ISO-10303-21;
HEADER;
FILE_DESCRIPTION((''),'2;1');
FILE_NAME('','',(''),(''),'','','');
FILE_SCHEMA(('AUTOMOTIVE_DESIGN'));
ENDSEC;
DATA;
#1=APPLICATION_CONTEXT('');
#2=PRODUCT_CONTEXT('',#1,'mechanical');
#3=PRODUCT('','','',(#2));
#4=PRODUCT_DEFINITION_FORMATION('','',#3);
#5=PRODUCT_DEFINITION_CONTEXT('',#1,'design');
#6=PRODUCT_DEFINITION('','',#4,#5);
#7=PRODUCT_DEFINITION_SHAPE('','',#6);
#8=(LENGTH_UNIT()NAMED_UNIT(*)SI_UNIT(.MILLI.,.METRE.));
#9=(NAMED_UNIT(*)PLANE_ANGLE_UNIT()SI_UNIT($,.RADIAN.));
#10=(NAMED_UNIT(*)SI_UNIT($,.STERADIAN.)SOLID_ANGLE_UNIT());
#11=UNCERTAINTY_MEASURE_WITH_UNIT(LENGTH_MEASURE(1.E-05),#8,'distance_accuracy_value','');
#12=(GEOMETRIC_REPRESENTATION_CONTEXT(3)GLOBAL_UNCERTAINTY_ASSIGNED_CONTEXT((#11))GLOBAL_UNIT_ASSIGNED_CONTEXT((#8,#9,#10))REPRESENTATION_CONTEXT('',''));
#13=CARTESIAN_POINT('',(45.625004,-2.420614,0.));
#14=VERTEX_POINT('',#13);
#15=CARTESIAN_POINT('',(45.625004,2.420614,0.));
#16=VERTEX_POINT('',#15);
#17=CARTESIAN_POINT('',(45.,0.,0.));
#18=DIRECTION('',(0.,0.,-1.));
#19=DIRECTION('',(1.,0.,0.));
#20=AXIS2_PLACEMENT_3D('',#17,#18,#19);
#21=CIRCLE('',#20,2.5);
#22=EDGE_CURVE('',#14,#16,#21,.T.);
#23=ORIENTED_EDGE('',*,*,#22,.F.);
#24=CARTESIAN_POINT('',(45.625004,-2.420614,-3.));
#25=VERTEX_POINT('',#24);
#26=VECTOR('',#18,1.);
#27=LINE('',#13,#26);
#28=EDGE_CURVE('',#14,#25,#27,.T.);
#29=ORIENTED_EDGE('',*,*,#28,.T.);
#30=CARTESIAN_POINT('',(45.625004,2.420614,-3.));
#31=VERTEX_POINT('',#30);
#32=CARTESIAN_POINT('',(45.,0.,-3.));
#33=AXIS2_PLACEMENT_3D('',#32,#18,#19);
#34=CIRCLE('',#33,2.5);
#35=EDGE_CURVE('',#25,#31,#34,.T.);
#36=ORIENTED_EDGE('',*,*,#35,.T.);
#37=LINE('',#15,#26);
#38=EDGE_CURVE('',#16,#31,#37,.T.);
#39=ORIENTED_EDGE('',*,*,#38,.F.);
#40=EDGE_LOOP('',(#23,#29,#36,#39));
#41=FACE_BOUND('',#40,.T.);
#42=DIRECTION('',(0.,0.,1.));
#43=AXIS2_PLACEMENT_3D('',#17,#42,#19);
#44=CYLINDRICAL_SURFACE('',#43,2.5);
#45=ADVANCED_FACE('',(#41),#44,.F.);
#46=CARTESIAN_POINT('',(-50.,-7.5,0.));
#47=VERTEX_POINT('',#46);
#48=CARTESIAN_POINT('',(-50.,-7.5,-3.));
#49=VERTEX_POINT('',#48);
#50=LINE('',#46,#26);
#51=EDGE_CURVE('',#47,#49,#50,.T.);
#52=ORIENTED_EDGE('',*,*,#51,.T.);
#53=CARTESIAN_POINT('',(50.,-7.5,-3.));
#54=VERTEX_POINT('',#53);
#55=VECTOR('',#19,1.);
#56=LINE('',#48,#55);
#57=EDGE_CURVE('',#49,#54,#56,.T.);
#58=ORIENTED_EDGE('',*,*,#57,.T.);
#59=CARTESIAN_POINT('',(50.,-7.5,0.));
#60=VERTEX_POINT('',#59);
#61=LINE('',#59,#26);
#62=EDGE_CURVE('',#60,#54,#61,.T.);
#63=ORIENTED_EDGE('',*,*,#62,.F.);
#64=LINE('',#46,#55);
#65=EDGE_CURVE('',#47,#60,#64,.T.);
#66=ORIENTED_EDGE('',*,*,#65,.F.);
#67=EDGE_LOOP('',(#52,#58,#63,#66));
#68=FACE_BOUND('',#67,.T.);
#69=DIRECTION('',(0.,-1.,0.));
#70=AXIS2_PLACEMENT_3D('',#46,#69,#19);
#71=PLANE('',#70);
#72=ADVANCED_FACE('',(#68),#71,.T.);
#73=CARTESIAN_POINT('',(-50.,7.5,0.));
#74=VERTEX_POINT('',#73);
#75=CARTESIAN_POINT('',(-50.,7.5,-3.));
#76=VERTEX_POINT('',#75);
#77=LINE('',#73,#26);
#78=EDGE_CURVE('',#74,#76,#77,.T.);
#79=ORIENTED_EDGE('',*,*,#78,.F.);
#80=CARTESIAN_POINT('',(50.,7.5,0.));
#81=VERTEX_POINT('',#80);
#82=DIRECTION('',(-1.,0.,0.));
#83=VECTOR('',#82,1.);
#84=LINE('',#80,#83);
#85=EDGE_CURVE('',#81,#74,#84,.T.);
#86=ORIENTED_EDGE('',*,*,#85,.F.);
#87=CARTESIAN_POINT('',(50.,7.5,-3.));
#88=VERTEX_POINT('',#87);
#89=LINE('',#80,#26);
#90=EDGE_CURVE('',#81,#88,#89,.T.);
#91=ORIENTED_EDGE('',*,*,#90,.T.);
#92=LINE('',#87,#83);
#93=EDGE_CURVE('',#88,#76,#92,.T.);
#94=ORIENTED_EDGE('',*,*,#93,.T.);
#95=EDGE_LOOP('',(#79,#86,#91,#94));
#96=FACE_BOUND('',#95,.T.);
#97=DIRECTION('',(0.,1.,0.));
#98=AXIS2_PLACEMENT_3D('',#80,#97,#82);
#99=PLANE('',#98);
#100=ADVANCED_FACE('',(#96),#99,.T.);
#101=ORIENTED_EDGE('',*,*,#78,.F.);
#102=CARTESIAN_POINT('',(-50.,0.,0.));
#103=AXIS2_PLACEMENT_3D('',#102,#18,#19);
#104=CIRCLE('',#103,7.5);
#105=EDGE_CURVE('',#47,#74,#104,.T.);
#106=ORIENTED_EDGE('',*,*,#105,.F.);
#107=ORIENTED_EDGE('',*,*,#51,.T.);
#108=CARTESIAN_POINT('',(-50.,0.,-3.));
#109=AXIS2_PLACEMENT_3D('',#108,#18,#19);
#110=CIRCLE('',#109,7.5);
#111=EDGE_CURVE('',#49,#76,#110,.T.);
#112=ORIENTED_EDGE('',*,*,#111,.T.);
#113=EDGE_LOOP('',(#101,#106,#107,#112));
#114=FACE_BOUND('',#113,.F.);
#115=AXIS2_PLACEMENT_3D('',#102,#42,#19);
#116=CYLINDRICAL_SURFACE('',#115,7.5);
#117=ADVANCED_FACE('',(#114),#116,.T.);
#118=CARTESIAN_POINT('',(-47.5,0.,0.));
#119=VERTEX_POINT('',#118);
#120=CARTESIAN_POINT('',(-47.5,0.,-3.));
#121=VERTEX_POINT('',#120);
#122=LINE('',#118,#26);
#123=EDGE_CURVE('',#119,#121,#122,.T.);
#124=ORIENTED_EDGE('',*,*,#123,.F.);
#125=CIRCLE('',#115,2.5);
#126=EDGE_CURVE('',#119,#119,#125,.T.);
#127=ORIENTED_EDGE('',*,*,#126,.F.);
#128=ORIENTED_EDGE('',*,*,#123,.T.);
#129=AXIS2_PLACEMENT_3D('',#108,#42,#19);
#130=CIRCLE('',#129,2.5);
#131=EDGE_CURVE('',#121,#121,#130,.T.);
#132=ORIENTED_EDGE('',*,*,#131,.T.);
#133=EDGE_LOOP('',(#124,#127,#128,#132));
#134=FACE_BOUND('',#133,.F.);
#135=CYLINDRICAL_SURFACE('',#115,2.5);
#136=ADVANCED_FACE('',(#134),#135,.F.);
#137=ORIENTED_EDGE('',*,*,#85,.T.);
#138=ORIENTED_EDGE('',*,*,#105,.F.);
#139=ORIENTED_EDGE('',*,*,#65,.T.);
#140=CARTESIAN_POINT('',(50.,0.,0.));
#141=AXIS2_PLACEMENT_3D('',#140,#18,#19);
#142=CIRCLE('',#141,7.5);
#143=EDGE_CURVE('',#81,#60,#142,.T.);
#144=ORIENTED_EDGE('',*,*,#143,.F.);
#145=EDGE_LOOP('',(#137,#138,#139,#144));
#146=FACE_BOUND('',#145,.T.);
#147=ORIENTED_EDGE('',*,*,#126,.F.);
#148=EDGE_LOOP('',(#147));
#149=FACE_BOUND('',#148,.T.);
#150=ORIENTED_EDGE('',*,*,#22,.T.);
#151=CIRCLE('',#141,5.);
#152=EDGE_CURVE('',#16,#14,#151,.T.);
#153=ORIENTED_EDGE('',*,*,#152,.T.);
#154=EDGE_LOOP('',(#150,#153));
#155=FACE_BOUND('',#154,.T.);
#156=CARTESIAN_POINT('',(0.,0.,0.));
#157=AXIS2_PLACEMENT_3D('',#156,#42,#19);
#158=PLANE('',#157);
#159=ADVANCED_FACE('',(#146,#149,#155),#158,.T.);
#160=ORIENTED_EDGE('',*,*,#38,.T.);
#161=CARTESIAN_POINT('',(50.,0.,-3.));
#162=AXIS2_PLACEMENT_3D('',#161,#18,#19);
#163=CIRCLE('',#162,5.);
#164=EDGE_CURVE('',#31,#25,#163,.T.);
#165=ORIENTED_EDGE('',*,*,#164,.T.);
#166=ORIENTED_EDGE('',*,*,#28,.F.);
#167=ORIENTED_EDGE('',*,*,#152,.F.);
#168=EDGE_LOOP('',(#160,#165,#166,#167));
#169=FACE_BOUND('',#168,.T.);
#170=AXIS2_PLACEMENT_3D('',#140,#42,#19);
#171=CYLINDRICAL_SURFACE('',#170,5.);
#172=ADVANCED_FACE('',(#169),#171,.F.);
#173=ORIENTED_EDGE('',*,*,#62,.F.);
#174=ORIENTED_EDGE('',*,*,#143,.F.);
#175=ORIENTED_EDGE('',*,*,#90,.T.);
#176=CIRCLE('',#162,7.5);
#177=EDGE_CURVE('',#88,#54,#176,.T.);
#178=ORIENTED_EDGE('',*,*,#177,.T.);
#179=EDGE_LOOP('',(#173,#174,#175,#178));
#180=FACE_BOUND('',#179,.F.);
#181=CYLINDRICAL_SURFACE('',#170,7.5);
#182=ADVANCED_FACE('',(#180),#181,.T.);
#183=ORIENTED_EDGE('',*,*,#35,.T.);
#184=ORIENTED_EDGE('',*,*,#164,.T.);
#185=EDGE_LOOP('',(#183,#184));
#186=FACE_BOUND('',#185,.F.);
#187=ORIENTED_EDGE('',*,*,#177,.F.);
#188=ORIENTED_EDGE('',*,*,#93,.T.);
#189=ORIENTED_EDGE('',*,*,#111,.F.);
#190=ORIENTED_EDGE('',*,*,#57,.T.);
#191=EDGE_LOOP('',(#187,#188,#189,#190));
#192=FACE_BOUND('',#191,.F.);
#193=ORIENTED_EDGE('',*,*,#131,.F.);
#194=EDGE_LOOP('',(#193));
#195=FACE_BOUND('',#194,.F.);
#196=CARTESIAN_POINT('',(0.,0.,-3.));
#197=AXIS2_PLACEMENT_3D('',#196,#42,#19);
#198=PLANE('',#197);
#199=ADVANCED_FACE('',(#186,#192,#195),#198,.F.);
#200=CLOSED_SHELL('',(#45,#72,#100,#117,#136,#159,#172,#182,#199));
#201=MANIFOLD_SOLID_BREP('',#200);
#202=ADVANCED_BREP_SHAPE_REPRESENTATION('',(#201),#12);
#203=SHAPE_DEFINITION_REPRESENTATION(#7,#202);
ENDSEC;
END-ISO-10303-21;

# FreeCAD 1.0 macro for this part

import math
import FreeCAD as App
import Part
import Sketcher

V = App.Vector

doc = App.newDocument("Part")
params = doc.addObject("Spreadsheet::Sheet", "Params")
for row, (alias, value) in enumerate([
    ("sketch1_diameter", "5 mm"),
    ("sketch1_radius", "5 mm"),
    ("sketch1_radius2", "7.5 mm"),
    ("sketch1_width", "100 mm"),
    ("pad1_length", "3 mm"),
], start=1):
    params.set(f"A{row}", alias)
    params.set(f"B{row}", "=" + value)
    params.setAlias(f"B{row}", alias)

body = doc.addObject("PartDesign::Body", "Body")

# Sketch on XY plane
sketch1 = body.newObject("Sketcher::SketchObject", "Sketch")
sketch1.AttachmentSupport = (doc.getObject("XY_Plane"), [""])
sketch1.MapMode = "FlatFace"
sketch1.addGeometry([
    Part.ArcOfCircle(Part.Circle(V(50, 0, 0), V(0, 0, 1), 7.5), math.radians(-90), math.radians(90)),  # 0
    Part.LineSegment(V(50, 7.5, 0), V(-50, 7.5, 0)),  # 1
    Part.ArcOfCircle(Part.Circle(V(-50, 0, 0), V(0, 0, 1), 7.5), math.radians(90), math.radians(270)),  # 2
    Part.LineSegment(V(-50, -7.5, 0), V(50, -7.5, 0)),  # 3
    Part.Circle(V(-50, 0, 0), V(0, 0, 1), 2.5),  # 4
    Part.ArcOfCircle(Part.Circle(V(50, 0, 0), V(0, 0, 1), 5), math.radians(-151), math.radians(151)),  # 5
    Part.ArcOfCircle(Part.Circle(V(45, 0, 0), V(0, 0, 1), 2.5), math.radians(76), math.radians(284)),  # 6
], False)
sketch1.addConstraint([
    Sketcher.Constraint("Tangent", 0, 2, 1, 1),
    Sketcher.Constraint("Tangent", 1, 2, 2, 1),
    Sketcher.Constraint("Tangent", 2, 2, 3, 1),
    Sketcher.Constraint("Tangent", 3, 2, 0, 1),
    Sketcher.Constraint("Coincident", 5, 1, 6, 2),
    Sketcher.Constraint("Coincident", 6, 1, 5, 2),
    Sketcher.Constraint("Horizontal", 1),
    Sketcher.Constraint("Horizontal", 3),
    Sketcher.Constraint("Coincident", 4, 3, 2, 3),
    Sketcher.Constraint("Coincident", 5, 3, 0, 3),
    Sketcher.Constraint("Equal", 4, 6),
    Sketcher.Constraint("Symmetric", 0, 3, 2, 3, -1, 1),
    Sketcher.Constraint("PointOnObject", 6, 3, -1),
    Sketcher.Constraint("Diameter", 4, 5.0),
    Sketcher.Constraint("Radius", 5, 5.0),
    Sketcher.Constraint("Radius", 0, 7.5),
    Sketcher.Constraint("DistanceX", 1, 2, 1, 1, 100.0),
    Sketcher.Constraint("DistanceX", -1, 1, 6, 3, 45.0),
])
sketch1.setExpression("Constraints[13]", "Params.sketch1_diameter")
sketch1.setExpression("Constraints[14]", "Params.sketch1_radius")
sketch1.setExpression("Constraints[15]", "Params.sketch1_radius2")
sketch1.setExpression("Constraints[16]", "Params.sketch1_width")
pad1 = body.newObject("PartDesign::Pad", "Pad")
pad1.Profile = sketch1
pad1.setExpression("Length", "Params.pad1_length")
pad1.Reversed = True

doc.recompute()
